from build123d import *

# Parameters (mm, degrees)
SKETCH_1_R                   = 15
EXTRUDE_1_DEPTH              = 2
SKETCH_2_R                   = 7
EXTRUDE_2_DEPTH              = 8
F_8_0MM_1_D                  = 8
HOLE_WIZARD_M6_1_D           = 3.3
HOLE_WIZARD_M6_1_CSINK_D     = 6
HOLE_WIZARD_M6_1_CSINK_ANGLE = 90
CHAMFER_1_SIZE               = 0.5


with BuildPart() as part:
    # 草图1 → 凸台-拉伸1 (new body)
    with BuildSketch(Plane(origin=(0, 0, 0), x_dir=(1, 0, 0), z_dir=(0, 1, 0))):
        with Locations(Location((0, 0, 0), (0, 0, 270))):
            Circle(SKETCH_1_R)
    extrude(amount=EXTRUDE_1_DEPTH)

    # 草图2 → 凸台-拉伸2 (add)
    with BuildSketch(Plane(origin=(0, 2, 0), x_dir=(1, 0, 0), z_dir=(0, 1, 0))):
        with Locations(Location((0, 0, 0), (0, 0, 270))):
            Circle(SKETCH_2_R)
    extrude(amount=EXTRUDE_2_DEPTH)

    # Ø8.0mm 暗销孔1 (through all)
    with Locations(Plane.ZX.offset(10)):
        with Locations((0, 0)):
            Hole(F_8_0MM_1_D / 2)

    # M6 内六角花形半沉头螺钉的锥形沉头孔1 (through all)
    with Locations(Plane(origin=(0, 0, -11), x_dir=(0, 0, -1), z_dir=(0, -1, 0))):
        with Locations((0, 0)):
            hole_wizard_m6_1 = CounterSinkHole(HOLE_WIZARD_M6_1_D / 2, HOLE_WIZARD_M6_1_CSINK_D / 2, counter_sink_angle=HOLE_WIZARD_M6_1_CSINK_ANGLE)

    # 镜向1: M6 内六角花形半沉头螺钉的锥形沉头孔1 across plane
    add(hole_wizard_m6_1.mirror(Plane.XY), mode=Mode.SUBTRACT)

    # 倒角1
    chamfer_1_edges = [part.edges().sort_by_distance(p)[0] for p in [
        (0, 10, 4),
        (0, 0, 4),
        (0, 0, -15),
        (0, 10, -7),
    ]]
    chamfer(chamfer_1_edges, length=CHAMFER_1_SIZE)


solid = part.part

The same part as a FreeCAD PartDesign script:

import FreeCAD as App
import Part
import Sketcher

V = App.Vector
Q = App.Units.Quantity


def edges_at(feature, points):
    """Names of the edges that pass closest to the given points."""
    edges = feature.Shape.Edges
    near = lambda p: min(range(len(edges)), key=lambda i: edges[i].distToShape(Part.Vertex(*p))[0])
    return sorted({f"Edge{near(p) + 1}" for p in points})

doc = App.newDocument("Part")
body = doc.addObject("PartDesign::Body", "Body")

# Sketch on XZ plane
sketch1 = body.newObject("Sketcher::SketchObject", "Sketch")
sketch1.AttachmentSupport = (doc.getObject("XZ_Plane"), [""])
sketch1.MapMode = "FlatFace"
sketch1.addGeometry(Part.Circle(V(0, 0, 0), V(0, 0, 1), 15), False)
sketch1.addConstraint(Sketcher.Constraint("Coincident", 0, 3, -1, 1))
sketch1.addConstraint(Sketcher.Constraint("Diameter", 0, Q("30 mm")))
pad1 = body.newObject("PartDesign::Pad", "Pad")
pad1.Profile = sketch1
pad1.Length = 2
pad1.Reversed = True

# Sketch on XZ plane
sketch2 = body.newObject("Sketcher::SketchObject", "Sketch001")
sketch2.AttachmentSupport = (doc.getObject("XZ_Plane"), [""])
sketch2.MapMode = "FlatFace"
sketch2.AttachmentOffset = App.Placement(V(0, 0, -2), App.Rotation())
sketch2.addGeometry(Part.Circle(V(0, 0, 0), V(0, 0, 1), 7), False)
sketch2.addConstraint(Sketcher.Constraint("Coincident", 0, 3, -1, 1))
sketch2.addConstraint(Sketcher.Constraint("Diameter", 0, Q("14 mm")))
pad2 = body.newObject("PartDesign::Pad", "Pad001")
pad2.Profile = sketch2
pad2.Length = 8
pad2.Reversed = True

# Sketch on XZ plane
sketch3 = body.newObject("Sketcher::SketchObject", "Sketch002")
sketch3.AttachmentSupport = (doc.getObject("XZ_Plane"), [""])
sketch3.MapMode = "FlatFace"
sketch3.AttachmentOffset = App.Placement(V(0, 0, -10), App.Rotation())
sketch3.addGeometry(Part.Circle(V(0, 0, 0), V(0, 0, 1), 4), False)
sketch3.addConstraint(Sketcher.Constraint("Coincident", 0, 3, -1, 1))
sketch3.addConstraint(Sketcher.Constraint("Diameter", 0, Q("8 mm")))
doc.recompute()
hole = body.newObject("PartDesign::Hole", "Hole")
hole.Profile = sketch3
hole.ThreadType = "None"
hole.Diameter = 8
hole.DepthType = "ThroughAll"
hole.Reversed = True

# Sketch on XZ plane
sketch4 = body.newObject("Sketcher::SketchObject", "Sketch003")
sketch4.AttachmentSupport = (doc.getObject("XZ_Plane"), [""])
sketch4.MapMode = "FlatFace"
sketch4.addGeometry(Part.Circle(V(0, -11, 0), V(0, 0, 1), 1.6), False)
sketch4.addConstraint(Sketcher.Constraint("PointOnObject", 0, 3, -2))
sketch4.addConstraint(Sketcher.Constraint("Diameter", 0, Q("3.3 mm")))
sketch4.addConstraint(Sketcher.Constraint("DistanceY", 0, 3, -1, 1, Q("11 mm")))
doc.recompute()
hole2 = body.newObject("PartDesign::Hole", "Hole001")
hole2.Profile = sketch4
hole2.ThreadType = "None"
hole2.Diameter = 3.3
hole2.DepthType = "ThroughAll"
hole2.HoleCutType = "Countersink"
hole2.HoleCutDiameter = 6
hole2.HoleCutCountersinkAngle = 90
doc.recompute()

mirrored = body.newObject("PartDesign::Mirrored", "Mirrored")
mirrored.Originals = [hole2]
mirrored.MirrorPlane = (doc.getObject("XY_Plane"), [""])
body.Tip = mirrored
doc.recompute()

chamfer = body.newObject("PartDesign::Chamfer", "Chamfer")
chamfer.Base = (mirrored, edges_at(mirrored, [
    (0, 10, 4),
    (0, 0, 4),
    (0, 0, -15),
    (0, 10, -7),
]))
chamfer.Size = 0.5

doc.recompute()
